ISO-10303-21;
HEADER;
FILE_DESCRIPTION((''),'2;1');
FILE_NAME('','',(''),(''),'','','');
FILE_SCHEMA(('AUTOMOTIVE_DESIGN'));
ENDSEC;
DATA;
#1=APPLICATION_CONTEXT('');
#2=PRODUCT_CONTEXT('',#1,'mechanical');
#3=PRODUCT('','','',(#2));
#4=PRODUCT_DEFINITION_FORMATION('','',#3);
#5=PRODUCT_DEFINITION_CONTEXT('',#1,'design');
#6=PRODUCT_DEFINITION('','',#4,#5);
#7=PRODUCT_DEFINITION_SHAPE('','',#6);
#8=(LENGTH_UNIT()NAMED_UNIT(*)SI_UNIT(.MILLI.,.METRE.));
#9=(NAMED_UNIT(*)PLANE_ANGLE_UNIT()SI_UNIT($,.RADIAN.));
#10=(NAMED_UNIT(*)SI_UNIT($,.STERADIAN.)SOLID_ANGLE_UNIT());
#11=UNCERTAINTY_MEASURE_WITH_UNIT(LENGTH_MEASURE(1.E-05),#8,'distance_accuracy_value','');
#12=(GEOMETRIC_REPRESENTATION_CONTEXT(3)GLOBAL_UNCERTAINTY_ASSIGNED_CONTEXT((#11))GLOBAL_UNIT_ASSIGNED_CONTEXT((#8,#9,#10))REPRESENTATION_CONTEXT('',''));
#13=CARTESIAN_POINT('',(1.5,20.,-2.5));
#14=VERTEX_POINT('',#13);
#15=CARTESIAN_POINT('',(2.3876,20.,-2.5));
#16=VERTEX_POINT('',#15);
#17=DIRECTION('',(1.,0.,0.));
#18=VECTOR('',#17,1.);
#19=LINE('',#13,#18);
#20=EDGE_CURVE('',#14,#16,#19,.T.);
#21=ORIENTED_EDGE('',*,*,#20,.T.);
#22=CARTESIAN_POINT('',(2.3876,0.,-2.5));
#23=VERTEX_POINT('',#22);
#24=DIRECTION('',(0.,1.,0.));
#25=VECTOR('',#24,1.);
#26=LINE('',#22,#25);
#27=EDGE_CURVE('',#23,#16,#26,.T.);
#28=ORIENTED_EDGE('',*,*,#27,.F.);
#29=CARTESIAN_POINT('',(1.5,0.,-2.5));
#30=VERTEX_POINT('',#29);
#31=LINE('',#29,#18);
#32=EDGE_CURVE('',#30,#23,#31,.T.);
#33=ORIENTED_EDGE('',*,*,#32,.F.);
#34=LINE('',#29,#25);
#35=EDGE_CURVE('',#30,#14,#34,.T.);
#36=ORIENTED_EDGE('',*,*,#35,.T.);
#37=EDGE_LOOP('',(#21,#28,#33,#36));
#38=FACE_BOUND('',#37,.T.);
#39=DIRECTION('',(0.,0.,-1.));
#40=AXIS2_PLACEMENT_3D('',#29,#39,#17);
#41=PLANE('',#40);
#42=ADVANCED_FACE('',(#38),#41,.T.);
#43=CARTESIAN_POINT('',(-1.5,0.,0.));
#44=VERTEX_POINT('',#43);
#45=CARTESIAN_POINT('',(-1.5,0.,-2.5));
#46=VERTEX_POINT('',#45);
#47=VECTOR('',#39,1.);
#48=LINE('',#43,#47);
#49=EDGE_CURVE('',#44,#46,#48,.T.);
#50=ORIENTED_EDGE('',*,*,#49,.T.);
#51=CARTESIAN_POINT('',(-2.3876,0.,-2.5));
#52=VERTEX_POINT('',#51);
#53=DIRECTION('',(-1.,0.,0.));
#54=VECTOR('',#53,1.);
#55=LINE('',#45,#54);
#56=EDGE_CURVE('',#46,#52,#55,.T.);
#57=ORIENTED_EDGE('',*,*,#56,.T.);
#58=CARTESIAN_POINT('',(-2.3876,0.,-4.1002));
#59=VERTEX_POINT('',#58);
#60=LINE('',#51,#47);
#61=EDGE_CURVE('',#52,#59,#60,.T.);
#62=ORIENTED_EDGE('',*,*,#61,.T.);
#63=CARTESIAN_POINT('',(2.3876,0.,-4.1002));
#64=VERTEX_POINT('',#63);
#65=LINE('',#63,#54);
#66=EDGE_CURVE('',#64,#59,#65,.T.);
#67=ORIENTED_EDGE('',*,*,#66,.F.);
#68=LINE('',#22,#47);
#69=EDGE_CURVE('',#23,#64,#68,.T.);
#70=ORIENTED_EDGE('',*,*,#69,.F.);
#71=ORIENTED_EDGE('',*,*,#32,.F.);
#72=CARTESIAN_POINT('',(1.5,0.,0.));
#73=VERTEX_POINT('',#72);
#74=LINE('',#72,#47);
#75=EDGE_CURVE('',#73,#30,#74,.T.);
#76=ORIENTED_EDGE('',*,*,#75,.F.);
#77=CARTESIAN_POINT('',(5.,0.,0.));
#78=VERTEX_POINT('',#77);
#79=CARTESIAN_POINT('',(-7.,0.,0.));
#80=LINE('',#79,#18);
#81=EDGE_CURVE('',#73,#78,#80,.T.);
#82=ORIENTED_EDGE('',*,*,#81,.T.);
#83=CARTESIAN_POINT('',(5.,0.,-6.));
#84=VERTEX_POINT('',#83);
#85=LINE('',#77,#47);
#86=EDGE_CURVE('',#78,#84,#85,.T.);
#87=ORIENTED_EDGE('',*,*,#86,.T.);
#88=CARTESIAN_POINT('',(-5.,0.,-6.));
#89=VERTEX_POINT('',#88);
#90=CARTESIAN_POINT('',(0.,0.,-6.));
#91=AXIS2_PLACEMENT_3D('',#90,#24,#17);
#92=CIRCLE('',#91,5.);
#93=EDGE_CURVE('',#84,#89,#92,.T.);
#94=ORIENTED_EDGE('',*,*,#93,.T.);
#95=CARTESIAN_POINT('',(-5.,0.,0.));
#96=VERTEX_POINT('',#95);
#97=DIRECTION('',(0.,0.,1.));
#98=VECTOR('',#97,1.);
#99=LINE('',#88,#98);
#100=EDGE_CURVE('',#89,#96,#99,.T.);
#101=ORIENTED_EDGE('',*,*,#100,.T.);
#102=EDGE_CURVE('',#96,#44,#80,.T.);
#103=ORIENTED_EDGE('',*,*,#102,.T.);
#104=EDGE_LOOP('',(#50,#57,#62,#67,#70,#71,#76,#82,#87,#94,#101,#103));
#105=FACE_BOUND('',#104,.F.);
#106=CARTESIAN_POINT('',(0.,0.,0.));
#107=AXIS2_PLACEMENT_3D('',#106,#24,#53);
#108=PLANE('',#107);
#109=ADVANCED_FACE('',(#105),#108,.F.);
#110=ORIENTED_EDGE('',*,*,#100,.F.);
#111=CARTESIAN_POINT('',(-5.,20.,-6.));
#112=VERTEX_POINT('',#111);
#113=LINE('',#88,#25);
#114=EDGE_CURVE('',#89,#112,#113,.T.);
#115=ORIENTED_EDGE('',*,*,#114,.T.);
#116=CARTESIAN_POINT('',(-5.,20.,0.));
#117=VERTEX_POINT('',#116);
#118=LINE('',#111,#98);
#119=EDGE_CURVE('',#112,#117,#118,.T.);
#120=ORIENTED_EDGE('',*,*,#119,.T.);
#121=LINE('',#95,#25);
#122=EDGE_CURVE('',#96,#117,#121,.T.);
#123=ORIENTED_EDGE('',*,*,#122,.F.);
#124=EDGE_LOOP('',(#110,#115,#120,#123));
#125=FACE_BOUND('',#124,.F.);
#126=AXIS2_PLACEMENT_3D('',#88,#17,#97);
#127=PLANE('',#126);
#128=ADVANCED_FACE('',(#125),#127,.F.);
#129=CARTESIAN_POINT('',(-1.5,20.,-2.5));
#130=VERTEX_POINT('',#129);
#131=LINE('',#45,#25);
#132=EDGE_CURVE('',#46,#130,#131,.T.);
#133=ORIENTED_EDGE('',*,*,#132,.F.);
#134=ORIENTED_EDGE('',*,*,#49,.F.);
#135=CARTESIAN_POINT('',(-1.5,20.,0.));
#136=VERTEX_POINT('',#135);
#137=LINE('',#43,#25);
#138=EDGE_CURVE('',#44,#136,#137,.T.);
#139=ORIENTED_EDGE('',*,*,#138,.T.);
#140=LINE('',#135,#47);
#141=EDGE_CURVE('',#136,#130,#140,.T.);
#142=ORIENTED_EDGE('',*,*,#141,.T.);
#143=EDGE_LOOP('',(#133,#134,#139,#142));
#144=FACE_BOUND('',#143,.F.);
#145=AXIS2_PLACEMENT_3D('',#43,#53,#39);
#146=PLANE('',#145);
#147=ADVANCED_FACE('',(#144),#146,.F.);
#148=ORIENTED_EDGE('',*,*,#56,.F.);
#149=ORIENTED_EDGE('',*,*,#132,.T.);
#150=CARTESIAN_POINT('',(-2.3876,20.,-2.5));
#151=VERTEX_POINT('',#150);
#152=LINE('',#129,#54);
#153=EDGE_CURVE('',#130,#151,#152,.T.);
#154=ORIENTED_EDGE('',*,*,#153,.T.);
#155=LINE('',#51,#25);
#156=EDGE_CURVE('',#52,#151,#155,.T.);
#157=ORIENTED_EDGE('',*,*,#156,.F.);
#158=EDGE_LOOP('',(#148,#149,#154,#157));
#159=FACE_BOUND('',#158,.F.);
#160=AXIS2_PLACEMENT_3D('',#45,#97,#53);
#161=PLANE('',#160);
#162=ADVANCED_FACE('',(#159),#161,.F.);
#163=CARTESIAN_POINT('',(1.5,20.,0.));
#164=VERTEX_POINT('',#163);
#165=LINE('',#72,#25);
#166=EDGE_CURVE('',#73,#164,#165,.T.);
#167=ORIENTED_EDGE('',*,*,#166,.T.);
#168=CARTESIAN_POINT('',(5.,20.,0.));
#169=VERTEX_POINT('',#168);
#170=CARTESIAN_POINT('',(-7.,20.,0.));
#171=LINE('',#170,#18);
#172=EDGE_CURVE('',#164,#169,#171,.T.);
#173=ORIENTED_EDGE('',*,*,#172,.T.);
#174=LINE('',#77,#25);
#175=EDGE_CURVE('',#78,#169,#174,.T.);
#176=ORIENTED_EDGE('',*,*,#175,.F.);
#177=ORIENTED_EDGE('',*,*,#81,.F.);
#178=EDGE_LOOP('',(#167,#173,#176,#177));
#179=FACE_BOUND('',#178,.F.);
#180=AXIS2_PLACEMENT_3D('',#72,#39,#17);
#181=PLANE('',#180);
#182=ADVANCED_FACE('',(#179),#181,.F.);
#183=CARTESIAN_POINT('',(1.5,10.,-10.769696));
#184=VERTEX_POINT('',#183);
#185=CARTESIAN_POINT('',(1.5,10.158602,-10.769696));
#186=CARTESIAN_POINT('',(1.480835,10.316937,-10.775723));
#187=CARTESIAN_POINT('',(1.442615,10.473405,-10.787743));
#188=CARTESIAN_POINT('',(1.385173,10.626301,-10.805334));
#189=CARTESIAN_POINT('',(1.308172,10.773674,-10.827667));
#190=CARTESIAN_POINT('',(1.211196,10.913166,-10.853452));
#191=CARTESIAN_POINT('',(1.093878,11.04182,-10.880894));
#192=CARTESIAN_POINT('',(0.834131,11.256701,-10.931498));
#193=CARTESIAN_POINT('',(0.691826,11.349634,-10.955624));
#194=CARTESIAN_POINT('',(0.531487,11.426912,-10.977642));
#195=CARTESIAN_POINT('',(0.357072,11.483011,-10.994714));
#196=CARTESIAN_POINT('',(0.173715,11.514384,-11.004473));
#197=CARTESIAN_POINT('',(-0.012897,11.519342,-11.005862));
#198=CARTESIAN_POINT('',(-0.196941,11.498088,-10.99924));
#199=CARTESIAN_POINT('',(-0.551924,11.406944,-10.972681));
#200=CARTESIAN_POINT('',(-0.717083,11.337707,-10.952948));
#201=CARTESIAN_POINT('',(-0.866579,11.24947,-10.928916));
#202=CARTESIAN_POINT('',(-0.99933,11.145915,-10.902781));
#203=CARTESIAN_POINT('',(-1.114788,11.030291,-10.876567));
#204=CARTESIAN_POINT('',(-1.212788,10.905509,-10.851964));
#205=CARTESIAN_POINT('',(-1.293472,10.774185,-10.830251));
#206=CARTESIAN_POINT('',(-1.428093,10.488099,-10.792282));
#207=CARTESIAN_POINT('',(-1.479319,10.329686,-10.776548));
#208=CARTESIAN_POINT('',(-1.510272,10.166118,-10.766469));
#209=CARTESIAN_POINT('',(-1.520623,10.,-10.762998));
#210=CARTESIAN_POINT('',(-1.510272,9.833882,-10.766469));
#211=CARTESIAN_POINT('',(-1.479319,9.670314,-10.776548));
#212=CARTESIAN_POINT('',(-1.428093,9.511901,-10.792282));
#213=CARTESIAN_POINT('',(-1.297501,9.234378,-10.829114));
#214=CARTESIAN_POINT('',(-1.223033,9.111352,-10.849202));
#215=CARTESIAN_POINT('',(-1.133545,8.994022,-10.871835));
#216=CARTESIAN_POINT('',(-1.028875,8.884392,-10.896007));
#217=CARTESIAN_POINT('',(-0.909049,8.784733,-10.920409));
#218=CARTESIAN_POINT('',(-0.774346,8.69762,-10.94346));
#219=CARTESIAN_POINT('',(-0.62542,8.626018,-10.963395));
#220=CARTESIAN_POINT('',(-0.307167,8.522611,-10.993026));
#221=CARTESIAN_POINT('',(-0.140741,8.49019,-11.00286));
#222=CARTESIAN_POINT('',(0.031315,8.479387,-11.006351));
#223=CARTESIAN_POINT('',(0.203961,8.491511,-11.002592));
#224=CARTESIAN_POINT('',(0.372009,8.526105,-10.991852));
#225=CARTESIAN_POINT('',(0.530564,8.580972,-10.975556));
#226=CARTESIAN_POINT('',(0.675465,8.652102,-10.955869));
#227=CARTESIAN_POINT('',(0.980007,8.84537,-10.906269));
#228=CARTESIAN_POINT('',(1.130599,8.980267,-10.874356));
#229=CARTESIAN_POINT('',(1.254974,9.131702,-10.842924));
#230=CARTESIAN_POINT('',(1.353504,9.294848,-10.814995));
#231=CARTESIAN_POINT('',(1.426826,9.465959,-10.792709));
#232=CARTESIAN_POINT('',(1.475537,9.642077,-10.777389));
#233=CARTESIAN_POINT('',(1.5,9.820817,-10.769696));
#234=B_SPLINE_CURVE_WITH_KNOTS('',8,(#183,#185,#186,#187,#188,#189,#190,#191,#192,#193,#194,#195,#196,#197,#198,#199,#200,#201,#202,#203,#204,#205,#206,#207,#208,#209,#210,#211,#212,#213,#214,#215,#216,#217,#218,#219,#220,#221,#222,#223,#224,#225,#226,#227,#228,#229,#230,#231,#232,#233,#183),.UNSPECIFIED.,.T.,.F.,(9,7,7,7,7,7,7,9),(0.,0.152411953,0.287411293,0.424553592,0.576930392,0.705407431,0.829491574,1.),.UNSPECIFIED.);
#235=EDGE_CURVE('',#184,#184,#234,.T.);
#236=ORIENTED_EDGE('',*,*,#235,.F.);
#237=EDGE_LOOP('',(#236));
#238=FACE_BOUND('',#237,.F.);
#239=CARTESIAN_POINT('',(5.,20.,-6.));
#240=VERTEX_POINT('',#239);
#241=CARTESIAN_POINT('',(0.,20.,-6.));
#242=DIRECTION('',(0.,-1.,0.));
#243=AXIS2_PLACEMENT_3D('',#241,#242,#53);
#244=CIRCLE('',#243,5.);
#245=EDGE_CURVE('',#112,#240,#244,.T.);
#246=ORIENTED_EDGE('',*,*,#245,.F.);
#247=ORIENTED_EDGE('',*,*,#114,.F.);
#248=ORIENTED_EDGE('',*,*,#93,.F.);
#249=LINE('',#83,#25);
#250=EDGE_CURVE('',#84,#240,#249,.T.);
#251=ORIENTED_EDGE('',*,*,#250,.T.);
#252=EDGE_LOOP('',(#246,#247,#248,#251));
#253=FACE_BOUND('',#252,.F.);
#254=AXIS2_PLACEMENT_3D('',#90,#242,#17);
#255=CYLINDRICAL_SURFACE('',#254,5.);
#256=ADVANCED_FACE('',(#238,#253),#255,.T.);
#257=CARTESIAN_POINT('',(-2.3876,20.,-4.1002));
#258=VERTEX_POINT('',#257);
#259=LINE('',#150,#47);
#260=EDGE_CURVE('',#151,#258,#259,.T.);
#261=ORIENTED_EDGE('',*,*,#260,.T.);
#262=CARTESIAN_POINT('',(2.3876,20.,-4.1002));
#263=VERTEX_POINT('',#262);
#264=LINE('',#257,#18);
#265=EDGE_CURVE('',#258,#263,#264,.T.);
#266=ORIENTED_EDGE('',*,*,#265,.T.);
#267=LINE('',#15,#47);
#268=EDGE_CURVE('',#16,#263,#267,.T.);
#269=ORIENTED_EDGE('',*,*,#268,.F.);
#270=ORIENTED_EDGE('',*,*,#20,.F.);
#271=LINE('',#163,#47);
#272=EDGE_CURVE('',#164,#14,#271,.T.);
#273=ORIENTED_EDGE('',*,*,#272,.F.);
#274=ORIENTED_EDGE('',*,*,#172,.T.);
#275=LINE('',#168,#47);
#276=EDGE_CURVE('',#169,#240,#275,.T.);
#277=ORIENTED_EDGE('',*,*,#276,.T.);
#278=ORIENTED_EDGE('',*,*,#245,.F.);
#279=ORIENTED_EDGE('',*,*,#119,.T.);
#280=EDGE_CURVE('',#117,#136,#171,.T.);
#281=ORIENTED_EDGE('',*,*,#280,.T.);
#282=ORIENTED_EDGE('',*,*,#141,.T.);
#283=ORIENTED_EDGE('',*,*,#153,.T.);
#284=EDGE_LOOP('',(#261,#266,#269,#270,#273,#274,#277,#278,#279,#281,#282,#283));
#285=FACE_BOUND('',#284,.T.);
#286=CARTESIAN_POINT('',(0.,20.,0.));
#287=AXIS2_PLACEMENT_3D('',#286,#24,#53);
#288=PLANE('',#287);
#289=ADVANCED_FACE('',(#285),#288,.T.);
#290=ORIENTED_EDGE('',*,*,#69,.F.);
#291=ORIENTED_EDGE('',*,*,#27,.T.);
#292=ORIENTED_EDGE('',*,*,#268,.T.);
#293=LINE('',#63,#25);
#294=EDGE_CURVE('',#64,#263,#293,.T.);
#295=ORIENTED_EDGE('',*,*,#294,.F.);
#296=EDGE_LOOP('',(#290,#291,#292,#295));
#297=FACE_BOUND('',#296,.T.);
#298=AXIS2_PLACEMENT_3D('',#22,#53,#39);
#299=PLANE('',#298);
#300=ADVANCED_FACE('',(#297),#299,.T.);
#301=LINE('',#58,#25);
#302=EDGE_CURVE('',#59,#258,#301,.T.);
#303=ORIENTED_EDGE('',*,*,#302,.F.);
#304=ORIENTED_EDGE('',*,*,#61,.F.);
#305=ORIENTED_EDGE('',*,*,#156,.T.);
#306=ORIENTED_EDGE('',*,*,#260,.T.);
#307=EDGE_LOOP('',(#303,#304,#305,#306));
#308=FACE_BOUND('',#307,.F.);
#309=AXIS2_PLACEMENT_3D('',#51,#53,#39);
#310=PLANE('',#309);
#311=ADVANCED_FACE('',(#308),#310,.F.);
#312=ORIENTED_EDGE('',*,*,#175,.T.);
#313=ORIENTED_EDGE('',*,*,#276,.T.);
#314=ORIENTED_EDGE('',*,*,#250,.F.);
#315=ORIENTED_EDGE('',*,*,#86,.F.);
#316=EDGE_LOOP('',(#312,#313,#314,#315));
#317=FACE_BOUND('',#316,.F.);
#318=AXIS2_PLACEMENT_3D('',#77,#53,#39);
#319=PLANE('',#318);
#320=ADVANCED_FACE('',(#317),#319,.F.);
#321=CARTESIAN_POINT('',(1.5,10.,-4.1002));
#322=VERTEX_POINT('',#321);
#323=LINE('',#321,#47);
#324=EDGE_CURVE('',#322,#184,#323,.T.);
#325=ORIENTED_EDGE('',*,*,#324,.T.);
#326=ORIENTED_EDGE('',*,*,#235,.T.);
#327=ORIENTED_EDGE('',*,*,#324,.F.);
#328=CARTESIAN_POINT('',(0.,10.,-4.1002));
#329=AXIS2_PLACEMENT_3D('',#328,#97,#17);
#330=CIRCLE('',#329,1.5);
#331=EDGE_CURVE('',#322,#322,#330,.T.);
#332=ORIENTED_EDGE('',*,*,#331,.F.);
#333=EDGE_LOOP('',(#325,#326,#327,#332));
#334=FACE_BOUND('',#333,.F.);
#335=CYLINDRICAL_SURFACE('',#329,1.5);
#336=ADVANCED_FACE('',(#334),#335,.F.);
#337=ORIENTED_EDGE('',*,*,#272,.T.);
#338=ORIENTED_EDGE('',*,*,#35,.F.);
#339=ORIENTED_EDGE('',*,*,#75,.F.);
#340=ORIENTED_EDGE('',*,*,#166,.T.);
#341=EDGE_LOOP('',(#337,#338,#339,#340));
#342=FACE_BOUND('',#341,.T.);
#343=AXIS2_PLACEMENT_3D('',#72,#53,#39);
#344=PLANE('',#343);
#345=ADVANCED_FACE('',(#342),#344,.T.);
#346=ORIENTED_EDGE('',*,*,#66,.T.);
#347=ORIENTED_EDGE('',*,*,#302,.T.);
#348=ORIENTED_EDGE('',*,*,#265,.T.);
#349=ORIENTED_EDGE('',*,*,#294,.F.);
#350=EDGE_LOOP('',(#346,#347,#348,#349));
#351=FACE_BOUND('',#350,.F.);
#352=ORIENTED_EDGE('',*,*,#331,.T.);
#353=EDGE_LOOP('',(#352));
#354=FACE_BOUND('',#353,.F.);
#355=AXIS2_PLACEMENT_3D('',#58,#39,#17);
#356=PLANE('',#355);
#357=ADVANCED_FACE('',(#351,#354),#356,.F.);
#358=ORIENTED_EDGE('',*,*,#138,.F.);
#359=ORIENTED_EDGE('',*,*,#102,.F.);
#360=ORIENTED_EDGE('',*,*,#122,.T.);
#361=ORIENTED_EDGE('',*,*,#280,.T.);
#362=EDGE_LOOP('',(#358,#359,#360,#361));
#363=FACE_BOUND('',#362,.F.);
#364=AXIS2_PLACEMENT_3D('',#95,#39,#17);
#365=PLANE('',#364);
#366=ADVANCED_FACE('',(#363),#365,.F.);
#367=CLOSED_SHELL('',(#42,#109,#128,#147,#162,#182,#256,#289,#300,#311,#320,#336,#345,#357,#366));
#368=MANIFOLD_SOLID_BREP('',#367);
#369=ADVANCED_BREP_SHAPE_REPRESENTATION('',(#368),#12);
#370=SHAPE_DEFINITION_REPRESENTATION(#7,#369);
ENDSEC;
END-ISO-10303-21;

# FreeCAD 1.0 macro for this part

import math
import FreeCAD as App
import Part
import Sketcher

doc = App.newDocument("Part")
params = doc.addObject("Spreadsheet::Sheet", "Params")
for row, (alias, value) in enumerate([
    ("sketch1_radius", "5 mm"),
    ("sketch1_height", "6 mm"),
    ("sketch1_height2", "2.5 mm"),
    ("pad1_length", "20 mm"),
    ("sketch2_diameter", "3 mm"),
    ("pocket1_length", "20 mm"),
], start=1):
    params.set(f"A{row}", alias)
    params.set(f"B{row}", "=" + value)
    params.setAlias(f"B{row}", alias)

body = doc.addObject("PartDesign::Body", "Body")

# Sketch on XZ plane
sketch1 = doc.addObject("Sketcher::SketchObject", "Sketch")
body.addObject(sketch1)
sketch1.AttachmentSupport = (doc.XZ_Plane, [""])
sketch1.MapMode = "FlatFace"
sketch1.addGeometry(Part.LineSegment(App.Vector(-5, -6, 0), App.Vector(-5, 0, 0)), False)
sketch1.addGeometry(Part.LineSegment(App.Vector(-5, 0, 0), App.Vector(-1.5, 0, 0)), False)
sketch1.addGeometry(Part.LineSegment(App.Vector(-1.5, 0, 0), App.Vector(-1.5, -2.5, 0)), False)
sketch1.addGeometry(Part.LineSegment(App.Vector(-1.5, -2.5, 0), App.Vector(-2.3876, -2.5, 0)), False)
sketch1.addGeometry(Part.LineSegment(App.Vector(-2.3876, -2.5, 0), App.Vector(-2.3876, -4.1002, 0)), False)
sketch1.addGeometry(Part.LineSegment(App.Vector(-2.3876, -4.1002, 0), App.Vector(2.3876, -4.1002, 0)), False)
sketch1.addGeometry(Part.LineSegment(App.Vector(2.3876, -4.1002, 0), App.Vector(2.3876, -2.5, 0)), False)
sketch1.addGeometry(Part.LineSegment(App.Vector(2.3876, -2.5, 0), App.Vector(1.5, -2.5, 0)), False)
sketch1.addGeometry(Part.LineSegment(App.Vector(1.5, -2.5, 0), App.Vector(1.5, 0, 0)), False)
sketch1.addGeometry(Part.LineSegment(App.Vector(1.5, 0, 0), App.Vector(5, 0, 0)), False)
sketch1.addGeometry(Part.LineSegment(App.Vector(5, 0, 0), App.Vector(5, -6, 0)), False)
sketch1.addGeometry(Part.ArcOfCircle(Part.Circle(App.Vector(0, -6, 0), App.Vector(0, 0, 1), 5), math.radians(180), math.radians(360)), False)
sketch1.addConstraint(Sketcher.Constraint("Coincident", 0, 2, 1, 1))
sketch1.addConstraint(Sketcher.Constraint("Coincident", 1, 2, 2, 1))
sketch1.addConstraint(Sketcher.Constraint("Coincident", 2, 2, 3, 1))
sketch1.addConstraint(Sketcher.Constraint("Coincident", 3, 2, 4, 1))
sketch1.addConstraint(Sketcher.Constraint("Coincident", 4, 2, 5, 1))
sketch1.addConstraint(Sketcher.Constraint("Coincident", 5, 2, 6, 1))
sketch1.addConstraint(Sketcher.Constraint("Coincident", 6, 2, 7, 1))
sketch1.addConstraint(Sketcher.Constraint("Coincident", 7, 2, 8, 1))
sketch1.addConstraint(Sketcher.Constraint("Coincident", 8, 2, 9, 1))
sketch1.addConstraint(Sketcher.Constraint("Coincident", 9, 2, 10, 1))
sketch1.addConstraint(Sketcher.Constraint("Tangent", 10, 2, 11, 2))
sketch1.addConstraint(Sketcher.Constraint("Tangent", 11, 1, 0, 1))
sketch1.addConstraint(Sketcher.Constraint("Vertical", 0))
sketch1.addConstraint(Sketcher.Constraint("Horizontal", 1))
sketch1.addConstraint(Sketcher.Constraint("Vertical", 2))
sketch1.addConstraint(Sketcher.Constraint("Horizontal", 3))
sketch1.addConstraint(Sketcher.Constraint("Vertical", 4))
sketch1.addConstraint(Sketcher.Constraint("Horizontal", 5))
sketch1.addConstraint(Sketcher.Constraint("Vertical", 6))
sketch1.addConstraint(Sketcher.Constraint("Horizontal", 7))
sketch1.addConstraint(Sketcher.Constraint("Vertical", 8))
sketch1.addConstraint(Sketcher.Constraint("Horizontal", 9))
sketch1.addConstraint(Sketcher.Constraint("Vertical", 10))
sketch1.addConstraint(Sketcher.Constraint("Symmetric", 1, 2, 8, 2, -1, 1))
sketch1.addConstraint(Sketcher.Constraint("Symmetric", 3, 2, 6, 2, -2))
sketch1.addConstraint(Sketcher.Constraint("Symmetric", 0, 2, 9, 2, -2))
sketch1.addConstraint(Sketcher.Constraint("Radius", 11, 5.0))
sketch1.addConstraint(Sketcher.Constraint("DistanceY", 0, 1, 0, 2, 6.0))
sketch1.addConstraint(Sketcher.Constraint("DistanceY", 2, 2, 2, 1, 2.5))
sketch1.addConstraint(Sketcher.Constraint("DistanceX", 1, 2, -1, 1, 1.5))
sketch1.addConstraint(Sketcher.Constraint("DistanceY", 4, 2, 4, 1, 1.6002))
sketch1.addConstraint(Sketcher.Constraint("DistanceX", 3, 2, -1, 1, 2.3876))
sketch1.setExpression("Constraints[26]", "Params.sketch1_radius")
sketch1.setExpression("Constraints[27]", "Params.sketch1_height")
sketch1.setExpression("Constraints[28]", "Params.sketch1_height2")
pad1 = doc.addObject("PartDesign::Pad", "Pad")
body.addObject(pad1)
pad1.Profile = sketch1
pad1.setExpression("Length", "Params.pad1_length")
pad1.Reversed = True

# Sketch on XY plane
sketch2 = doc.addObject("Sketcher::SketchObject", "Sketch001")
body.addObject(sketch2)
sketch2.AttachmentSupport = (doc.XY_Plane, [""])
sketch2.MapMode = "FlatFace"
sketch2.AttachmentOffset = App.Placement(App.Vector(0, 0, -4.1002), App.Rotation())
sketch2.addGeometry(Part.Circle(App.Vector(0, 10, 0), App.Vector(0, 0, 1), 1.5), False)
sketch2.addConstraint(Sketcher.Constraint("PointOnObject", 0, 3, -2))
sketch2.addConstraint(Sketcher.Constraint("Diameter", 0, 3.0))
sketch2.addConstraint(Sketcher.Constraint("DistanceY", -1, 1, 0, 3, 10.0))
sketch2.setExpression("Constraints[1]", "Params.sketch2_diameter")
pocket1 = doc.addObject("PartDesign::Pocket", "Pocket")
body.addObject(pocket1)
pocket1.Profile = sketch2
pocket1.setExpression("Length", "Params.pocket1_length")

doc.recompute()
